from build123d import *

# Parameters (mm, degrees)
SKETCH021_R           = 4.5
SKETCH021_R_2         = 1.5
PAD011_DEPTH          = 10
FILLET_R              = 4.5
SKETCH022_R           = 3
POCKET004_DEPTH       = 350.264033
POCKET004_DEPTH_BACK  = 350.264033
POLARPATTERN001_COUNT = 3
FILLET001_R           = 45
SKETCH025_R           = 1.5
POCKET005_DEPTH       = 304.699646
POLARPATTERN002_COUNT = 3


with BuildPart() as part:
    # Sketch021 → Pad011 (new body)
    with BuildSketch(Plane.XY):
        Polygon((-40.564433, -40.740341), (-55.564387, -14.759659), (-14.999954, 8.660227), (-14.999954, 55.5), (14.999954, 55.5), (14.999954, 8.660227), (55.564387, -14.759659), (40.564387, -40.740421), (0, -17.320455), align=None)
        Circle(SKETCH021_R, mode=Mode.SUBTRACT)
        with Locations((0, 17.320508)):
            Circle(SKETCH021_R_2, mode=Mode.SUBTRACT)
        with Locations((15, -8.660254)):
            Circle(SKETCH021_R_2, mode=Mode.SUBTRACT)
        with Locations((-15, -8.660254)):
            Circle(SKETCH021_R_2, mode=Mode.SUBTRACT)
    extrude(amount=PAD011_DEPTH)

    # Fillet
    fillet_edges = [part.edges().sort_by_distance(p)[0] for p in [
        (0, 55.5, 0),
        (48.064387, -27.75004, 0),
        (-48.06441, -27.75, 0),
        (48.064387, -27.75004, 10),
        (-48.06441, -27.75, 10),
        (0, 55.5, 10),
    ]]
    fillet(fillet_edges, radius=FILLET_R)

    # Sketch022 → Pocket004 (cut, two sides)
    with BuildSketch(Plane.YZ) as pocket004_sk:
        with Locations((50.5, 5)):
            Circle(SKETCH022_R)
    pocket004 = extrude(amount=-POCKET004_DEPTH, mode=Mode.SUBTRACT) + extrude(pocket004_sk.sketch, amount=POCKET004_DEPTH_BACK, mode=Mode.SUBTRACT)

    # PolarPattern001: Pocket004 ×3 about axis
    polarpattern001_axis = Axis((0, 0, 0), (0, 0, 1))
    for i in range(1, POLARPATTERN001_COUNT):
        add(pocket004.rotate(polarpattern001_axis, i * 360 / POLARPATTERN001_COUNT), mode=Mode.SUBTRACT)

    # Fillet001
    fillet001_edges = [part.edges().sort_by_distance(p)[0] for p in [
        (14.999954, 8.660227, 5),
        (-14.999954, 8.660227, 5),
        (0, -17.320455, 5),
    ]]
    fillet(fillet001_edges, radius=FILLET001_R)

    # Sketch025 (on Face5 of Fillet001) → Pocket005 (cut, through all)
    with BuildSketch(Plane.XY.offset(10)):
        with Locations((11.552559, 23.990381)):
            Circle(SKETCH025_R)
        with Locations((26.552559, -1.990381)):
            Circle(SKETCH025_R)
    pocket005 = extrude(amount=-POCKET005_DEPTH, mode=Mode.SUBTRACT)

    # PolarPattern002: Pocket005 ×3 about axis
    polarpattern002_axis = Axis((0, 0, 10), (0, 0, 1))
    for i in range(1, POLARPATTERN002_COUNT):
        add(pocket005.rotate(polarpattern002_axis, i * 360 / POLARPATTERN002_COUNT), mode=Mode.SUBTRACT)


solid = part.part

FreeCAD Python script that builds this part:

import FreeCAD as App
import Part
import Sketcher


def edges_at(feature, points):
    """Names of the edges that pass closest to the given points."""
    edges = feature.Shape.Edges
    near = lambda p: min(range(len(edges)), key=lambda i: edges[i].distToShape(Part.Vertex(*p))[0])
    return sorted({f"Edge{near(p) + 1}" for p in points})


def add_polygon(sketch, points):
    """Adds a closed chain of lines whose ends are joined by coincident constraints."""
    first, n = sketch.GeometryCount, len(points)
    for a, b in zip(points, points[1:] + points[:1]):
        sketch.addGeometry(Part.LineSegment(App.Vector(*a, 0), App.Vector(*b, 0)), False)
    for i in range(n):
        sketch.addConstraint(Sketcher.Constraint("Coincident", first + i, 2, first + (i + 1) % n, 1))

doc = App.newDocument("Part")
params = doc.addObject("Spreadsheet::Sheet", "Params")
for row, (alias, value) in enumerate([
    ("sketch1_diameter", "3 mm"),
    ("sketch1_diameter2", "3 mm"),
    ("sketch1_diameter3", "9 mm"),
    ("sketch1_diameter4", "3 mm"),
    ("sketch1_length", "30 mm"),
    ("pad1_length", "10 mm"),
    ("fillet_radius", "4.5 mm"),
    ("sketch2_diameter", "6 mm"),
    ("fillet2_radius", "45 mm"),
    ("sketch3_diameter", "3 mm"),
], start=1):
    params.set(f"A{row}", alias)
    params.set(f"B{row}", "=" + value)
    params.setAlias(f"B{row}", alias)

body = doc.addObject("PartDesign::Body", "Body")

sketch1 = body.newObject("Sketcher::SketchObject", "Sketch")
sketch1.AttachmentSupport = (doc.getObject("XY_Plane"), [""])
sketch1.MapMode = "FlatFace"
add_polygon(sketch1, [(-55.564387, -14.759659), (-40.564433, -40.740341), (0, -17.320455), (40.564387, -40.740421), (55.564387, -14.759659), (14.999954, 8.660227), (14.999954, 55.5), (-14.999954, 55.5), (-14.999954, 8.660227)])
sketch1.addGeometry(Part.Circle(App.Vector(15, -8.660254, 0), App.Vector(0, 0, 1), 1.5), False)
sketch1.addGeometry(Part.Circle(App.Vector(-15, -8.660254, 0), App.Vector(0, 0, 1), 1.5), False)
sketch1.addGeometry(Part.Circle(App.Vector(0, 0, 0), App.Vector(0, 0, 1), 4.5), False)
sketch1.addGeometry(Part.Circle(App.Vector(0, 17.320508, 0), App.Vector(0, 0, 1), 1.5), False)
sketch1.addConstraint([
    Sketcher.Constraint("Vertical", 5),
    Sketcher.Constraint("Horizontal", 6),
    Sketcher.Constraint("Vertical", 7),
    Sketcher.Constraint("Coincident", 11, 3, -1, 1),
    Sketcher.Constraint("PointOnObject", 12, 3, -2),
    Sketcher.Constraint("PointOnObject", 1, 2, -2),
    Sketcher.Constraint("Diameter", 9, 3.0),
    Sketcher.Constraint("Diameter", 10, 3.0),
    Sketcher.Constraint("Diameter", 11, 9.0),
    Sketcher.Constraint("Diameter", 12, 3.0),
    Sketcher.Constraint("Distance", 3, 30.0),
    Sketcher.Constraint("DistanceX", -1, 1, 9, 3, 15.0),
    Sketcher.Constraint("DistanceX", 10, 3, -1, 1, 15.0),
    Sketcher.Constraint("DistanceX", 2, 2, 3, 2, 15.0),
    Sketcher.Constraint("DistanceY", -1, 1, 5, 2, 55.5),
    Sketcher.Constraint("DistanceX", 6, 2, 6, 1, 29.999908),
    Sketcher.Constraint("DistanceY", 1, 2, 9, 3, 8.660201),
    Sketcher.Constraint("DistanceY", 1, 2, 10, 3, 8.660201),
    Sketcher.Constraint("DistanceY", 5, 1, 5, 2, 46.839773),
    Sketcher.Constraint("DistanceY", 7, 2, 7, 1, 46.839773),
    Sketcher.Constraint("DistanceY", -1, 1, 12, 3, 17.320508),
    Sketcher.Constraint("DistanceY", 0, 2, -1, 1, 40.740341),
    Sketcher.Constraint("DistanceY", 2, 2, -1, 1, 40.740421),
    Sketcher.Constraint("DistanceY", 8, 2, -1, 1, 14.759659),
    Sketcher.Constraint("DistanceY", 9, 3, 12, 3, 25.980762),
    Sketcher.Constraint("Distance", 0, 29.999908),
    Sketcher.Constraint("Distance", 1, 46.839772),
    Sketcher.Constraint("Distance", 2, 46.839773),
    Sketcher.Constraint("Distance", 4, 46.839772),
])
sketch1.setExpression("Constraints[15]", "Params.sketch1_diameter")
sketch1.setExpression("Constraints[16]", "Params.sketch1_diameter2")
sketch1.setExpression("Constraints[17]", "Params.sketch1_diameter3")
sketch1.setExpression("Constraints[18]", "Params.sketch1_diameter4")
sketch1.setExpression("Constraints[19]", "Params.sketch1_length")
pad1 = body.newObject("PartDesign::Pad", "Pad")
pad1.Profile = sketch1
pad1.setExpression("Length", "Params.pad1_length")
doc.recompute()

fillet = body.newObject("PartDesign::Fillet", "Fillet")
fillet.Base = (pad1, edges_at(pad1, [
    (0, 55.5, 0),
    (48.064, -27.75, 0),
    (-48.064, -27.75, 0),
    (48.064, -27.75, 10),
    (-48.064, -27.75, 10),
    (0, 55.5, 10),
]))
fillet.setExpression("Radius", "Params.fillet_radius")

sketch2 = body.newObject("Sketcher::SketchObject", "Sketch001")
sketch2.AttachmentSupport = (doc.getObject("YZ_Plane"), [""])
sketch2.MapMode = "FlatFace"
sketch2.addGeometry(Part.Circle(App.Vector(50.5, 5, 0), App.Vector(0, 0, 1), 3), False)
sketch2.addConstraint([
    Sketcher.Constraint("Diameter", 0, 6.0),
    Sketcher.Constraint("DistanceY", -1, 1, 0, 3, 5.0),
    Sketcher.Constraint("DistanceX", -1, 1, 0, 3, 50.5),
])
sketch2.setExpression("Constraints[0]", "Params.sketch2_diameter")
pocket1 = body.newObject("PartDesign::Pocket", "Pocket")
pocket1.Profile = sketch2
pocket1.Type = "ThroughAll"
pocket1.Midplane = True
doc.recompute()

polarpattern = body.newObject("PartDesign::PolarPattern", "PolarPattern")
polarpattern.Originals = [pocket1]
polarpattern.Axis = (doc.getObject("Z_Axis"), [""])
polarpattern.Angle = 360
polarpattern.Occurrences = 3
body.Tip = polarpattern
doc.recompute()

fillet2 = body.newObject("PartDesign::Fillet", "Fillet001")
fillet2.Base = (polarpattern, edges_at(polarpattern, [(15, 8.66, 5), (-15, 8.66, 5), (0, -17.32, 5)]))
fillet2.setExpression("Radius", "Params.fillet2_radius")

sketch3 = body.newObject("Sketcher::SketchObject", "Sketch002")
sketch3.AttachmentSupport = (doc.getObject("XY_Plane"), [""])
sketch3.MapMode = "FlatFace"
sketch3.AttachmentOffset = App.Placement(App.Vector(0, 0, 10), App.Rotation())
sketch3.addGeometry([
    Part.Circle(App.Vector(11.552559, 23.990381, 0), App.Vector(0, 0, 1), 1.5),
    Part.Circle(App.Vector(26.552559, -1.990381, 0), App.Vector(0, 0, 1), 1.5),
], False)
sketch3.addConstraint([
    Sketcher.Constraint("Equal", 0, 1),
    Sketcher.Constraint("Diameter", 0, 3.0),
    Sketcher.Constraint("DistanceX", 0, 3, 1, 3, 15.0),
    Sketcher.Constraint("DistanceX", -1, 1, 0, 3, 11.552559),
    Sketcher.Constraint("DistanceY", -1, 1, 0, 3, 23.990381),
    Sketcher.Constraint("DistanceY", 1, 3, -1, 1, 1.990381),
])
sketch3.setExpression("Constraints[1]", "Params.sketch3_diameter")
pocket2 = body.newObject("PartDesign::Pocket", "Pocket001")
pocket2.Profile = sketch3
pocket2.Type = "ThroughAll"
doc.recompute()

polarpattern2 = body.newObject("PartDesign::PolarPattern", "PolarPattern001")
polarpattern2.Originals = [pocket2]
polarpattern2.Axis = (doc.getObject("Z_Axis"), [""])
polarpattern2.Angle = 360
polarpattern2.Occurrences = 3
body.Tip = polarpattern2

doc.recompute()
